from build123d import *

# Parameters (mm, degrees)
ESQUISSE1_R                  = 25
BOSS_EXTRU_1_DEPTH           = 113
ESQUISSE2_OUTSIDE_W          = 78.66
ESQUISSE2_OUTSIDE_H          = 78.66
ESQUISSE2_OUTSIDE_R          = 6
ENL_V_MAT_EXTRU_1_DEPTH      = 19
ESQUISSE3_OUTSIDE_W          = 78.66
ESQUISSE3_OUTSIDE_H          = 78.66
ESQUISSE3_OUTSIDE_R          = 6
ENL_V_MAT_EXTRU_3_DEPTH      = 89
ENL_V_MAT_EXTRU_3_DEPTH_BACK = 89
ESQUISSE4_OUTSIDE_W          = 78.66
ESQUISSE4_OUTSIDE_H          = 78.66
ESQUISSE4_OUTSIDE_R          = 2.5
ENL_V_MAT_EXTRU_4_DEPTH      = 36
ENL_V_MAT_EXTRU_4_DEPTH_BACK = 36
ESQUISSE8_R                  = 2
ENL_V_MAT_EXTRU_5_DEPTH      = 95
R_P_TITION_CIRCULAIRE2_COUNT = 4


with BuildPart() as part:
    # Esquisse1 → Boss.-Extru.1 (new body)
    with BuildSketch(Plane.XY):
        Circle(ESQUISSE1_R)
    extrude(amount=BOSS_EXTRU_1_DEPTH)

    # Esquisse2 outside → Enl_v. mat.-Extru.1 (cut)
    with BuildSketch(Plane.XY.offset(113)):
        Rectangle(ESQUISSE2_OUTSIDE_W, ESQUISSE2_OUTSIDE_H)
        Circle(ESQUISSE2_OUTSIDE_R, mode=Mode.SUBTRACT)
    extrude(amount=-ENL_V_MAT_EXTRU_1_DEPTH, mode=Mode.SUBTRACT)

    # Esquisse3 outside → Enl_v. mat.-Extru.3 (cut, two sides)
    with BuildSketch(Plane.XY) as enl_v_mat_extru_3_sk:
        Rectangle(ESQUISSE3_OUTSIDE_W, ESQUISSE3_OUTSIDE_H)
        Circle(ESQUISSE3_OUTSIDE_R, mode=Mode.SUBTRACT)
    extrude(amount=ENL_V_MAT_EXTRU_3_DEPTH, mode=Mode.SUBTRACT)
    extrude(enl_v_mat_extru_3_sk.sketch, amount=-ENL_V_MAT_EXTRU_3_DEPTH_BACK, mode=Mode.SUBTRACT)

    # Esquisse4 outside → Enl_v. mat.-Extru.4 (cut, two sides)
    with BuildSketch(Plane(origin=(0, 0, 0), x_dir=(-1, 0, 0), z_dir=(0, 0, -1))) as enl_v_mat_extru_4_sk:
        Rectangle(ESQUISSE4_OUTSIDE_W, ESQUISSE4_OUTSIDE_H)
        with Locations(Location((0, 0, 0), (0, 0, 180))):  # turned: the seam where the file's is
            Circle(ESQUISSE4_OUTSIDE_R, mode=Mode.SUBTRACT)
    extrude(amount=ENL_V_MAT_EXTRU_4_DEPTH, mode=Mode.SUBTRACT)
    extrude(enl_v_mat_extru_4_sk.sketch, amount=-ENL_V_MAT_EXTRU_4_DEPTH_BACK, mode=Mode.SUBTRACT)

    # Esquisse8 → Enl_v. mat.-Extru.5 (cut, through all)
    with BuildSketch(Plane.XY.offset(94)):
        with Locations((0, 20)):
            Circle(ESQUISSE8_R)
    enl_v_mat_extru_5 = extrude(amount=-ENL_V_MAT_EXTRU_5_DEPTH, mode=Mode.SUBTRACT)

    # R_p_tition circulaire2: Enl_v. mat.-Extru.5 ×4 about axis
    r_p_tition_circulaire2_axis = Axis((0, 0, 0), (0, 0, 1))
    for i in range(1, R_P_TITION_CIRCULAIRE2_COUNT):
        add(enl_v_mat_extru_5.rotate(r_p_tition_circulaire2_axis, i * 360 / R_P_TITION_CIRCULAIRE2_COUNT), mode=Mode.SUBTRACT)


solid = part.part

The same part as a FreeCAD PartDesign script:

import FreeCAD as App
import Part
import Sketcher
from FreeCAD import Vector


def add_polygon(sketch, points):
    """Adds a closed chain of lines whose ends are joined by coincident constraints."""
    first, n = sketch.GeometryCount, len(points)
    for a, b in zip(points, points[1:] + points[:1]):
        sketch.addGeometry(Part.LineSegment(App.Vector(*a, 0), App.Vector(*b, 0)), False)
    for i in range(n):
        sketch.addConstraint(Sketcher.Constraint("Coincident", first + i, 2, first + (i + 1) % n, 1))

doc = App.newDocument("Part")
body = doc.addObject("PartDesign::Body", "Body")

# Sketch on XY plane
sketch1 = body.newObject("Sketcher::SketchObject", "Sketch")
sketch1.AttachmentSupport = (doc.getObject("XY_Plane"), [""])
sketch1.MapMode = "FlatFace"
sketch1.addGeometry(Part.Circle(Vector(0, 0, 0), Vector(0, 0, 1), 25), False)
sketch1.addConstraint([
    Sketcher.Constraint("Coincident", 0, 3, -1, 1),
    Sketcher.Constraint("Diameter", 0, 50.0),
])
pad1 = body.newObject("PartDesign::Pad", "Pad")
pad1.Profile = sketch1
pad1.Length = 113

# Sketch on XY plane
sketch2 = body.newObject("Sketcher::SketchObject", "Sketch001")
sketch2.AttachmentSupport = (doc.getObject("XY_Plane"), [""])
sketch2.MapMode = "FlatFace"
sketch2.AttachmentOffset = App.Placement(Vector(0, 0, 113), App.Rotation())
add_polygon(sketch2, [(-39, 39), (-39, -39), (39, -39), (39, 39)])  # lines 0-3
sketch2.addGeometry(Part.Circle(Vector(0, 0, 0), Vector(0, 0, 1), 6), False)  # 4
sketch2.addConstraint([
    Sketcher.Constraint("Vertical", 0),
    Sketcher.Constraint("Horizontal", 1),
    Sketcher.Constraint("Vertical", 2),
    Sketcher.Constraint("Horizontal", 3),
    Sketcher.Constraint("Coincident", 4, 3, -1, 1),
    Sketcher.Constraint("Symmetric", 0, 2, 2, 2, -1, 1),
    Sketcher.Constraint("Equal", 3, 0),
    Sketcher.Constraint("Diameter", 4, 12.0),
    Sketcher.Constraint("DistanceX", 1, 1, 1, 2, 78.66),
])
pocket1 = body.newObject("PartDesign::Pocket", "Pocket")
pocket1.Profile = sketch2
pocket1.Length = 19

# Sketch on XY plane
sketch3 = body.newObject("Sketcher::SketchObject", "Sketch002")
sketch3.AttachmentSupport = (doc.getObject("XY_Plane"), [""])
sketch3.MapMode = "FlatFace"
add_polygon(sketch3, [(-39, 39), (-39, -39), (39, -39), (39, 39)])  # lines 0-3
sketch3.addGeometry(Part.Circle(Vector(0, 0, 0), Vector(0, 0, 1), 6), False)  # 4
sketch3.addConstraint([
    Sketcher.Constraint("Vertical", 0),
    Sketcher.Constraint("Horizontal", 1),
    Sketcher.Constraint("Vertical", 2),
    Sketcher.Constraint("Horizontal", 3),
    Sketcher.Constraint("Coincident", 4, 3, -1, 1),
    Sketcher.Constraint("Symmetric", 0, 2, 2, 2, -1, 1),
    Sketcher.Constraint("Equal", 3, 0),
    Sketcher.Constraint("Diameter", 4, 12.0),
    Sketcher.Constraint("DistanceX", 1, 1, 1, 2, 78.66),
])
pocket2 = body.newObject("PartDesign::Pocket", "Pocket001")
pocket2.Profile = sketch3
pocket2.Type = "TwoLengths"
pocket2.Length = 89
pocket2.Length2 = 89
pocket2.Reversed = True

# Sketch on XY plane
sketch4 = body.newObject("Sketcher::SketchObject", "Sketch003")
sketch4.AttachmentSupport = (doc.getObject("XY_Plane"), [""])
sketch4.MapMode = "FlatFace"
add_polygon(sketch4, [(39.3, 39.3), (39.3, -39.3), (-39.3, -39.3), (-39.3, 39.3)])  # lines 0-3
sketch4.addGeometry(Part.Circle(Vector(0, 0, 0), Vector(0, 0, 1), 2.5), False)  # 4
sketch4.addConstraint([
    Sketcher.Constraint("Vertical", 0),
    Sketcher.Constraint("Horizontal", 1),
    Sketcher.Constraint("Vertical", 2),
    Sketcher.Constraint("Horizontal", 3),
    Sketcher.Constraint("Coincident", 4, 3, -1, 1),
    Sketcher.Constraint("Symmetric", 0, 2, 2, 2, -1, 1),
    Sketcher.Constraint("Equal", 3, 0),
    Sketcher.Constraint("Diameter", 4, 5.0),
    Sketcher.Constraint("DistanceX", 1, 2, 1, 1, 78.66),
])
pocket3 = body.newObject("PartDesign::Pocket", "Pocket002")
pocket3.Profile = sketch4
pocket3.Type = "TwoLengths"
pocket3.Length = 36
pocket3.Length2 = 36

# Sketch on XY plane
sketch5 = body.newObject("Sketcher::SketchObject", "Sketch004")
sketch5.AttachmentSupport = (doc.getObject("XY_Plane"), [""])
sketch5.MapMode = "FlatFace"
sketch5.AttachmentOffset = App.Placement(Vector(0, 0, 94), App.Rotation())
sketch5.addGeometry(Part.Circle(Vector(0, 20, 0), Vector(0, 0, 1), 2), False)
sketch5.addConstraint([
    Sketcher.Constraint("PointOnObject", 0, 3, -2),
    Sketcher.Constraint("Diameter", 0, 4.0),
    Sketcher.Constraint("DistanceY", -1, 1, 0, 3, 20.0),
])
pocket4 = body.newObject("PartDesign::Pocket", "Pocket003")
pocket4.Profile = sketch5
pocket4.Type = "ThroughAll"
doc.recompute()

polarpattern = body.newObject("PartDesign::PolarPattern", "PolarPattern")
polarpattern.Originals = [pocket4]
polarpattern.Axis = (doc.getObject("Z_Axis"), [""])
polarpattern.Angle = 360
polarpattern.Occurrences = 4
body.Tip = polarpattern

doc.recompute()
